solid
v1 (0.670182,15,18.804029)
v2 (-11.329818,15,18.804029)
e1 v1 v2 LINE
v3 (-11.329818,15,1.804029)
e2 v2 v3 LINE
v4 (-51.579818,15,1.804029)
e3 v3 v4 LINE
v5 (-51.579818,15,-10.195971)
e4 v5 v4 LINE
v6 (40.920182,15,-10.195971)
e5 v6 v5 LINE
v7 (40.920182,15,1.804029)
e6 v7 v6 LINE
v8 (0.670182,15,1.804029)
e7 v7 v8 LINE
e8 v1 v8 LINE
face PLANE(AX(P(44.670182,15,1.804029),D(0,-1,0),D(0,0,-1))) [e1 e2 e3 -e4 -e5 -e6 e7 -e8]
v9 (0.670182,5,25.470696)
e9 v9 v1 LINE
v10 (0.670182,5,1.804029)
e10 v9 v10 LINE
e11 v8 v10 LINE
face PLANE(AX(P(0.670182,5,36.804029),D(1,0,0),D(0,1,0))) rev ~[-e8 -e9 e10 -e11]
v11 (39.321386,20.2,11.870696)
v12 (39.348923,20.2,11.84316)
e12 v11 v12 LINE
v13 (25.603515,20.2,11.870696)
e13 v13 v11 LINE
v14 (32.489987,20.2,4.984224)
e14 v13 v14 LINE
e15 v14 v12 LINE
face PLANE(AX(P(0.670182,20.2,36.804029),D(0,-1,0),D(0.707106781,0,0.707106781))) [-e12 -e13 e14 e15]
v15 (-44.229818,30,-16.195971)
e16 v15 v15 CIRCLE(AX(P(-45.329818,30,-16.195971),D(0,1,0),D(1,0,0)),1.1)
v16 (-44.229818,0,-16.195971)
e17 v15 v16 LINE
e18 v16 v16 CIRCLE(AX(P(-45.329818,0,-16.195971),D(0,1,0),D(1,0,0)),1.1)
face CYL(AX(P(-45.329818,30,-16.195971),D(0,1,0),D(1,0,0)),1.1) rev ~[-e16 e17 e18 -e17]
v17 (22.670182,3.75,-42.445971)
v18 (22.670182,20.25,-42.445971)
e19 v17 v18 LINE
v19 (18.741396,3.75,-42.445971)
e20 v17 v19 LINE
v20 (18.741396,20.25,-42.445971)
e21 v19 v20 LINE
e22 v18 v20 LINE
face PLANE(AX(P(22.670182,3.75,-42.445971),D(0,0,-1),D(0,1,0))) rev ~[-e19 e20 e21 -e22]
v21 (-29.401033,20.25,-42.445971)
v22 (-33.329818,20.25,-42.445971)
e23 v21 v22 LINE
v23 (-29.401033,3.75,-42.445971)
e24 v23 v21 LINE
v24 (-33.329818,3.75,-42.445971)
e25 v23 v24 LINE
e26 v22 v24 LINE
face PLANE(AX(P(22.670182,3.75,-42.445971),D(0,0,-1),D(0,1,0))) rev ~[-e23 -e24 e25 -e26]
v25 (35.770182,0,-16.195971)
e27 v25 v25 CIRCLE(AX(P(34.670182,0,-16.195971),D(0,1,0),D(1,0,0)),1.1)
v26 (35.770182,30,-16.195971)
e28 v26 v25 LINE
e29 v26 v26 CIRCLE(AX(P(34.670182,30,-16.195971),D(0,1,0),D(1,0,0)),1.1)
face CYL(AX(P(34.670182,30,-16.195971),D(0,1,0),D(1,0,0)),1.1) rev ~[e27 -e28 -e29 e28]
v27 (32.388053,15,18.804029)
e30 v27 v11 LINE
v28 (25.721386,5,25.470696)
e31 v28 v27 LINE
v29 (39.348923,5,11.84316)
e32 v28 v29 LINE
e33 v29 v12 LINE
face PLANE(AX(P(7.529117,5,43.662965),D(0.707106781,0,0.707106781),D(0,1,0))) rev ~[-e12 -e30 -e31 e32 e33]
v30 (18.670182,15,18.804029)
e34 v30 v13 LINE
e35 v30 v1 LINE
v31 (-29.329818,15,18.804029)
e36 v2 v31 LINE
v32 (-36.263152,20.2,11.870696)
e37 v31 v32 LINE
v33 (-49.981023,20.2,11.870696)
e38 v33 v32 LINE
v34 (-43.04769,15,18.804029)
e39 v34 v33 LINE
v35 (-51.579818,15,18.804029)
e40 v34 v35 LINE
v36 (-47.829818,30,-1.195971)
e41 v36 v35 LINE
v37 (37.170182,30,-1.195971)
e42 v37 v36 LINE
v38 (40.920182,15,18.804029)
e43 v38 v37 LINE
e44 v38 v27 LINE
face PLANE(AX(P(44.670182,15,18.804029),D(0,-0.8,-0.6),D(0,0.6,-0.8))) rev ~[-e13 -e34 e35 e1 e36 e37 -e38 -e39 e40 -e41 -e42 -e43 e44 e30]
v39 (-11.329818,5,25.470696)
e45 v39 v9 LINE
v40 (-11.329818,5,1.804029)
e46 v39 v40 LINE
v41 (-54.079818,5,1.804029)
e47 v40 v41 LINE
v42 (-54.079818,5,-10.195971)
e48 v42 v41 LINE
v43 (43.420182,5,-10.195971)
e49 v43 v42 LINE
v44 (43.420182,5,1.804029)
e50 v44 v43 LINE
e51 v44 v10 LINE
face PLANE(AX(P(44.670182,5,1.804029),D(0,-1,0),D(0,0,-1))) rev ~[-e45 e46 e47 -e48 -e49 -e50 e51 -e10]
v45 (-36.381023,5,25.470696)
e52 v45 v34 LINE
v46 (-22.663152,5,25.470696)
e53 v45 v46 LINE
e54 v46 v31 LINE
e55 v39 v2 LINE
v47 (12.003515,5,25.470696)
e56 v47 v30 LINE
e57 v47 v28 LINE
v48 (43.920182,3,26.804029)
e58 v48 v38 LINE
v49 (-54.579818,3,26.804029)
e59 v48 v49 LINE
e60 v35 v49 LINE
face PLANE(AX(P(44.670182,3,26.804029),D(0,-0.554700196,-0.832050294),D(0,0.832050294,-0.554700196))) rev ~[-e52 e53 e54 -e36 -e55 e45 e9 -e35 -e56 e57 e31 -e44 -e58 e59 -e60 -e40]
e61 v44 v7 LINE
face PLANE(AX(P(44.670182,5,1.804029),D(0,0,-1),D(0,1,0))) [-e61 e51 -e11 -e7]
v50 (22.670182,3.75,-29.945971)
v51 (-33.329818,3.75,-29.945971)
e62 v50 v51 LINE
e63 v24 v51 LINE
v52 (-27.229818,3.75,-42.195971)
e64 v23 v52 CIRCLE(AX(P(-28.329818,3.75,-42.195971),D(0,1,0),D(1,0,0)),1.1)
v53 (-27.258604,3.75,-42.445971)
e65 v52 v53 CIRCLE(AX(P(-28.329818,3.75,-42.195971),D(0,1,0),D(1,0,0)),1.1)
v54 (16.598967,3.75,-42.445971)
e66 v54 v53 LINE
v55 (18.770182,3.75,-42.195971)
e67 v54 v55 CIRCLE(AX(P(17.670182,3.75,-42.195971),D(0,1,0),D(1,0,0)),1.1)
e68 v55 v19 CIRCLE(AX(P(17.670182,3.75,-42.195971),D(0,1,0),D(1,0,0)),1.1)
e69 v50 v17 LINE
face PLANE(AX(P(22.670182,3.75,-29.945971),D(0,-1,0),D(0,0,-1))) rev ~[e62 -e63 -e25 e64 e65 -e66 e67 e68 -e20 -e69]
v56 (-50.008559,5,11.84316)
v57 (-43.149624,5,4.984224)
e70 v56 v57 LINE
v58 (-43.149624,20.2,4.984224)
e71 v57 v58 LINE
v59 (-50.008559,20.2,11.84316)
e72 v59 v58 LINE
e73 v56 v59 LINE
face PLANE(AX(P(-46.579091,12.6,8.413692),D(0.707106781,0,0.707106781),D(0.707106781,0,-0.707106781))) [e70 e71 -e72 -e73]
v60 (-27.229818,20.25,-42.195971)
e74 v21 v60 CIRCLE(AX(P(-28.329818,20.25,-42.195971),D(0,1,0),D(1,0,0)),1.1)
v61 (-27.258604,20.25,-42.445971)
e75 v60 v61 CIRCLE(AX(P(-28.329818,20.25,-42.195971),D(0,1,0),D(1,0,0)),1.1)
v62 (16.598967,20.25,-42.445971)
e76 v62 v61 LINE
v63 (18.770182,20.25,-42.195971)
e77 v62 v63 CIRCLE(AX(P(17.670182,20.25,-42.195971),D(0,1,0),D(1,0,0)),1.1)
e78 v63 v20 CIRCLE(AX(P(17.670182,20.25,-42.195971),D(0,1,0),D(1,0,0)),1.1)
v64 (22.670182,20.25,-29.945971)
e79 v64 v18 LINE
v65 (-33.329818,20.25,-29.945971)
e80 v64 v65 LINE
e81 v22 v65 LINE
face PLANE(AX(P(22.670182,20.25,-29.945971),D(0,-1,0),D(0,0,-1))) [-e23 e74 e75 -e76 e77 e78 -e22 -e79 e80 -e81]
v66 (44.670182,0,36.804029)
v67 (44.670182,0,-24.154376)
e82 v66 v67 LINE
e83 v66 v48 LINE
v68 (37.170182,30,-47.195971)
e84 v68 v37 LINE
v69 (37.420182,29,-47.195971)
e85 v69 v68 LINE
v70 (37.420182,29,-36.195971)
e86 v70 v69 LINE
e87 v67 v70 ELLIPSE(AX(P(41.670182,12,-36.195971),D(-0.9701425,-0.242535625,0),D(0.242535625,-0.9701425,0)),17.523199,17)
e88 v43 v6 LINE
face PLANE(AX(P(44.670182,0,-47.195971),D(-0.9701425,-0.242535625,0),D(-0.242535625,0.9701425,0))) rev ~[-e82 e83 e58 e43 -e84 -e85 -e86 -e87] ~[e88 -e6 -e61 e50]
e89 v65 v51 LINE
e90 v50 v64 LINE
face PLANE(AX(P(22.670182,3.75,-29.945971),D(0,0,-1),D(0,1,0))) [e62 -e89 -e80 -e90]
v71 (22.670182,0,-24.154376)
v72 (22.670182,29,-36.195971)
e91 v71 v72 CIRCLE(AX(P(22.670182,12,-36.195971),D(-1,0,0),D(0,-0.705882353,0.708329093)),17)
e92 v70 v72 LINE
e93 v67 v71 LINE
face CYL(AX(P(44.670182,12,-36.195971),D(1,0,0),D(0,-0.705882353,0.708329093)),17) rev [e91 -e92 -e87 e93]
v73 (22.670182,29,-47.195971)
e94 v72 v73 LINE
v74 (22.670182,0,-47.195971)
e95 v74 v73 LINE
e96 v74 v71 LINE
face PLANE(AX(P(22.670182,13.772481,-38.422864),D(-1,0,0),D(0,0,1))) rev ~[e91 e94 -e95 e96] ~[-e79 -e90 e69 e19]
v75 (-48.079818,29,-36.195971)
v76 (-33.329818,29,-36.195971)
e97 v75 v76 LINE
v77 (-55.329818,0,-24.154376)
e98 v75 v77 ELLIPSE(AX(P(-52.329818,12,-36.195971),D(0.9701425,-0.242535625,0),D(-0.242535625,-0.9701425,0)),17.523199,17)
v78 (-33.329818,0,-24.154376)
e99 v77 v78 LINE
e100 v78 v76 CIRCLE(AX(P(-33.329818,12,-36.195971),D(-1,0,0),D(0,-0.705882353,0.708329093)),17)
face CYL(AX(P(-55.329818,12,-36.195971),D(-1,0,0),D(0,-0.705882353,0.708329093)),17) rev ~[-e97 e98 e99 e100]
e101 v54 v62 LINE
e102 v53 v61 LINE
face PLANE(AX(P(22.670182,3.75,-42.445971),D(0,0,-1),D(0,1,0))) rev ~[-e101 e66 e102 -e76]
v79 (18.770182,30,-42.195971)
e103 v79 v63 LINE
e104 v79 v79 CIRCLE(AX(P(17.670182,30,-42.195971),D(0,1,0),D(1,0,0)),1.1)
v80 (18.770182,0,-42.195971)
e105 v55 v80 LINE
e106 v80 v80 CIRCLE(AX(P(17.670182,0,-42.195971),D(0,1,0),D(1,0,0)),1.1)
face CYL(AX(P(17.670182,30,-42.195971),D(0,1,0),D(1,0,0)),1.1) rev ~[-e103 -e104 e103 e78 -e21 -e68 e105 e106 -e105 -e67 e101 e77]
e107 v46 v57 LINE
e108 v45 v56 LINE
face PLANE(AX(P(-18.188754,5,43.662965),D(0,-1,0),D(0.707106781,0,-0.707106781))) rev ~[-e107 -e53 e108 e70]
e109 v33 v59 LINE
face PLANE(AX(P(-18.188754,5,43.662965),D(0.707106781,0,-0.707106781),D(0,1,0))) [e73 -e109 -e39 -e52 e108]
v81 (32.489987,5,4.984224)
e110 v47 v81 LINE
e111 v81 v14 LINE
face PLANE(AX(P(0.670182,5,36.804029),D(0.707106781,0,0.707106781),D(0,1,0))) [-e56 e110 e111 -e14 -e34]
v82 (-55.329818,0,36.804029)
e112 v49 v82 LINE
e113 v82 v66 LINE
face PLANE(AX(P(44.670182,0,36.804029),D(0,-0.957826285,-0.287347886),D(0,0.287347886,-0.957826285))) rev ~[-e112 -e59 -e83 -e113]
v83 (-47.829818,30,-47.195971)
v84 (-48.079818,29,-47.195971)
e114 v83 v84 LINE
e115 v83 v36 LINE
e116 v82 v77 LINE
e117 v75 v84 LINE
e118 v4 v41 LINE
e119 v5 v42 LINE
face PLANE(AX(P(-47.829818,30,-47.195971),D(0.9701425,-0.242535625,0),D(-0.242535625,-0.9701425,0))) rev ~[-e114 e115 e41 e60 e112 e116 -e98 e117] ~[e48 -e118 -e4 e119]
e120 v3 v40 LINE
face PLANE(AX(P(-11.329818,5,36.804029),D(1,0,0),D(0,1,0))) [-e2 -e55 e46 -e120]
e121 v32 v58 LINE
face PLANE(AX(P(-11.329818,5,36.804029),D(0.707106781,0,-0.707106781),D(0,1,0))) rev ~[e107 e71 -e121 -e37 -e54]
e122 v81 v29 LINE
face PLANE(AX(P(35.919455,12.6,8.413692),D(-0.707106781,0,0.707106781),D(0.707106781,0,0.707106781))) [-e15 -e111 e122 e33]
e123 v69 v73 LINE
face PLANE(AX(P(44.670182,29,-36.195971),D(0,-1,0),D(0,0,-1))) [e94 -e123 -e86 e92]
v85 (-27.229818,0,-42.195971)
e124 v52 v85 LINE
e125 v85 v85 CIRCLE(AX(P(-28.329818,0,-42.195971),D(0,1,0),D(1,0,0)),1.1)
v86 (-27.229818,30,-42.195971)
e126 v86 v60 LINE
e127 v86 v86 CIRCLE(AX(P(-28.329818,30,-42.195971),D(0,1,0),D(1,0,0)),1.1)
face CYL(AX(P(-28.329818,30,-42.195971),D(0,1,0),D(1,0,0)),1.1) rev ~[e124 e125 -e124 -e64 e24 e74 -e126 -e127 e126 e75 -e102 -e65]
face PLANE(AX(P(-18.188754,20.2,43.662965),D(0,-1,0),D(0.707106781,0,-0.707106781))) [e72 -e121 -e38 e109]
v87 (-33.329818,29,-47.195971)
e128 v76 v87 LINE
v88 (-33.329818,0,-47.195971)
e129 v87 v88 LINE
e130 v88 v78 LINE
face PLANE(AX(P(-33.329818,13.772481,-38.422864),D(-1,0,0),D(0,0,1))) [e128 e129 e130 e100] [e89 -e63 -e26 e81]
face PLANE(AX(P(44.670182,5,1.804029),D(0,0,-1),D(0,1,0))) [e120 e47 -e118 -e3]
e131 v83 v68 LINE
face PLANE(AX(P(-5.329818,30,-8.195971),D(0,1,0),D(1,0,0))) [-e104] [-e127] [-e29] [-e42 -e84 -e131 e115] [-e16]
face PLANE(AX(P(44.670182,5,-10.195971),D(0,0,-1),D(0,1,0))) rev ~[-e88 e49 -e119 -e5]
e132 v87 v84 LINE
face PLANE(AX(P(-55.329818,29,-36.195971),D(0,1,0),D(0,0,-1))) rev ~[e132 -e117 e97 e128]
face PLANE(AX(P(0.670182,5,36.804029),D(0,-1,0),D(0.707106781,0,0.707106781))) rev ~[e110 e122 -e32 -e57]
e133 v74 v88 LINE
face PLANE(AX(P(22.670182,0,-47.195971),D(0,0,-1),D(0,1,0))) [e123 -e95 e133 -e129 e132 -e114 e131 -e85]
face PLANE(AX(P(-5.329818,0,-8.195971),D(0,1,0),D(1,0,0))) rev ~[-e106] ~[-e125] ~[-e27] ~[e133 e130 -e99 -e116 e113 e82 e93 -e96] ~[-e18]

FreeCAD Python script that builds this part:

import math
import FreeCAD as App
import Part
import Sketcher
from FreeCAD import Vector

doc = App.newDocument("Part")
body = doc.addObject("PartDesign::Body", "Body")

# Sketch on XZ plane
sketch1 = body.newObject("Sketcher::SketchObject", "Sketch")
sketch1.AttachmentSupport = (doc.getObject("XZ_Plane"), [""])
sketch1.MapMode = "FlatFace"
sketch1.addGeometry([
    Part.LineSegment(Vector(-55, -53, 0), Vector(-55, 37, 0)),
    Part.LineSegment(Vector(-55, 37, 0), Vector(45, 37, 0)),
    Part.LineSegment(Vector(45, 37, 0), Vector(45, -53, 0)),
    Part.LineSegment(Vector(45, -53, 0), Vector(-55, -53, 0)),
], False)
sketch1.addConstraint([
    Sketcher.Constraint("Coincident", 0, 2, 1, 1),
    Sketcher.Constraint("Coincident", 1, 2, 2, 1),
    Sketcher.Constraint("Coincident", 2, 2, 3, 1),
    Sketcher.Constraint("Coincident", 3, 2, 0, 1),
    Sketcher.Constraint("Vertical", 0),
    Sketcher.Constraint("Horizontal", 1),
    Sketcher.Constraint("Vertical", 2),
    Sketcher.Constraint("Horizontal", 3),
    Sketcher.Constraint("DistanceX", 1, 1, 1, 2, 100.0),
    Sketcher.Constraint("DistanceY", 0, 1, 0, 2, 90.0),
    Sketcher.Constraint("DistanceX", 0, 2, -1, 1, 55.329818),
    Sketcher.Constraint("DistanceY", -1, 1, 0, 2, 36.804029),
])
pad1 = body.newObject("PartDesign::Pad", "Pad")
pad1.Profile = sketch1
pad1.Length = 30
pad1.Reversed = True

# Sketch on YZ plane
sketch2 = body.newObject("Sketcher::SketchObject", "Sketch001")
sketch2.AttachmentSupport = (doc.getObject("YZ_Plane"), [""])
sketch2.MapMode = "FlatFace"
sketch2.AttachmentOffset = App.Placement(Vector(0, 0, 44.670182), App.Rotation())
sketch2.addGeometry([
    Part.LineSegment(Vector(29, -53, 0), Vector(29, -36, 0)),
    Part.ArcOfCircle(Part.Circle(Vector(12, -36, 0), Vector(0, 0, 1), 17), math.radians(0), math.radians(135)),
    Part.LineSegment(Vector(0, -24, 0), Vector(0, -53, 0)),
    Part.LineSegment(Vector(0, -53, 0), Vector(29, -53, 0)),
], False)
sketch2.addConstraint([
    Sketcher.Constraint("Tangent", 0, 2, 1, 1),
    Sketcher.Constraint("Coincident", 1, 2, 2, 1),
    Sketcher.Constraint("Coincident", 2, 2, 3, 1),
    Sketcher.Constraint("Coincident", 3, 2, 0, 1),
    Sketcher.Constraint("Vertical", 0),
    Sketcher.Constraint("Vertical", 2),
    Sketcher.Constraint("Horizontal", 3),
    Sketcher.Constraint("PointOnObject", 1, 2, -2),
    Sketcher.Constraint("Radius", 1, 17.0),
    Sketcher.Constraint("DistanceX", 3, 1, 3, 2, 29.0),
    Sketcher.Constraint("DistanceY", 0, 1, 0, 2, 17.0),
    Sketcher.Constraint("DistanceY", 1, 3, -1, 1, 36.195971),
])
pocket1 = body.newObject("PartDesign::Pocket", "Pocket")
pocket1.Profile = sketch2
pocket1.Length = 22

# Sketch on YZ plane
sketch3 = body.newObject("Sketcher::SketchObject", "Sketch002")
sketch3.AttachmentSupport = (doc.getObject("YZ_Plane"), [""])
sketch3.MapMode = "FlatFace"
sketch3.AttachmentOffset = App.Placement(Vector(0, 0, -55.329818), App.Rotation())
sketch3.addGeometry([
    Part.LineSegment(Vector(29, -36, 0), Vector(29, -53, 0)),
    Part.LineSegment(Vector(29, -53, 0), Vector(0, -53, 0)),
    Part.LineSegment(Vector(0, -53, 0), Vector(0, -24, 0)),
    Part.ArcOfCircle(Part.Circle(Vector(12, -36, 0), Vector(0, 0, 1), 17), math.radians(0), math.radians(135)),
], False)
sketch3.addConstraint([
    Sketcher.Constraint("Coincident", 0, 2, 1, 1),
    Sketcher.Constraint("Coincident", 1, 2, 2, 1),
    Sketcher.Constraint("Coincident", 2, 2, 3, 2),
    Sketcher.Constraint("Tangent", 3, 1, 0, 1),
    Sketcher.Constraint("Vertical", 0),
    Sketcher.Constraint("Horizontal", 1),
    Sketcher.Constraint("Vertical", 2),
    Sketcher.Constraint("PointOnObject", 1, 2, -2),
    Sketcher.Constraint("Radius", 3, 17.0),
    Sketcher.Constraint("DistanceX", 1, 2, 1, 1, 29.0),
    Sketcher.Constraint("DistanceY", 0, 2, 0, 1, 17.0),
    Sketcher.Constraint("DistanceY", 3, 3, -1, 1, 36.195971),
])
pocket2 = body.newObject("PartDesign::Pocket", "Pocket001")
pocket2.Profile = sketch3
pocket2.Length = 22
pocket2.Reversed = True

# Sketch on YZ plane
sketch4 = body.newObject("Sketcher::SketchObject", "Sketch003")
sketch4.AttachmentSupport = (doc.getObject("YZ_Plane"), [""])
sketch4.MapMode = "FlatFace"
sketch4.AttachmentOffset = App.Placement(Vector(0, 0, 22.670182), App.Rotation())
sketch4.addGeometry([
    Part.LineSegment(Vector(20, -30, 0), Vector(4, -30, 0)),
    Part.LineSegment(Vector(4, -30, 0), Vector(4, -42, 0)),
    Part.LineSegment(Vector(4, -42, 0), Vector(20, -42, 0)),
    Part.LineSegment(Vector(20, -42, 0), Vector(20, -30, 0)),
], False)
sketch4.addConstraint([
    Sketcher.Constraint("Coincident", 0, 2, 1, 1),
    Sketcher.Constraint("Coincident", 1, 2, 2, 1),
    Sketcher.Constraint("Coincident", 2, 2, 3, 1),
    Sketcher.Constraint("Coincident", 3, 2, 0, 1),
    Sketcher.Constraint("Horizontal", 0),
    Sketcher.Constraint("Vertical", 1),
    Sketcher.Constraint("Horizontal", 2),
    Sketcher.Constraint("Vertical", 3),
    Sketcher.Constraint("DistanceX", 0, 2, 0, 1, 16.5),
    Sketcher.Constraint("DistanceY", 1, 2, 1, 1, 12.5),
    Sketcher.Constraint("DistanceX", -1, 1, 0, 2, 3.75),
    Sketcher.Constraint("DistanceY", 0, 2, -1, 1, 29.945971),
])
pocket3 = body.newObject("PartDesign::Pocket", "Pocket002")
pocket3.Profile = sketch4
pocket3.Length = 70

# Sketch on YZ plane
sketch5 = body.newObject("Sketcher::SketchObject", "Sketch004")
sketch5.AttachmentSupport = (doc.getObject("YZ_Plane"), [""])
sketch5.MapMode = "FlatFace"
sketch5.AttachmentOffset = App.Placement(Vector(0, 0, 22.670182), App.Rotation())
sketch5.addGeometry([
    Part.LineSegment(Vector(30, -47, 0), Vector(0, -47, 0)),
    Part.LineSegment(Vector(0, -47, 0), Vector(0, -53, 0)),
    Part.LineSegment(Vector(0, -53, 0), Vector(30, -53, 0)),
    Part.LineSegment(Vector(30, -53, 0), Vector(30, -47, 0)),
], False)
sketch5.addConstraint([
    Sketcher.Constraint("Coincident", 0, 2, 1, 1),
    Sketcher.Constraint("Coincident", 1, 2, 2, 1),
    Sketcher.Constraint("Coincident", 2, 2, 3, 1),
    Sketcher.Constraint("Coincident", 3, 2, 0, 1),
    Sketcher.Constraint("Horizontal", 0),
    Sketcher.Constraint("Vertical", 1),
    Sketcher.Constraint("Horizontal", 2),
    Sketcher.Constraint("Vertical", 3),
    Sketcher.Constraint("PointOnObject", 0, 2, -2),
    Sketcher.Constraint("DistanceX", 0, 2, 0, 1, 30.0),
    Sketcher.Constraint("DistanceY", 1, 2, 1, 1, 6.0),
    Sketcher.Constraint("DistanceY", 0, 2, -1, 1, 47.195971),
])
pocket4 = body.newObject("PartDesign::Pocket", "Pocket003")
pocket4.Profile = sketch5
pocket4.Length = 100

# Sketch on XZ plane
sketch6 = body.newObject("Sketcher::SketchObject", "Sketch005")
sketch6.AttachmentSupport = (doc.getObject("XZ_Plane"), [""])
sketch6.MapMode = "FlatFace"
sketch6.AttachmentOffset = App.Placement(Vector(0, 0, -30), App.Rotation())
sketch6.addGeometry([
    Part.LineSegment(Vector(23, -53, 0), Vector(23, -47, 0)),
    Part.LineSegment(Vector(23, -47, 0), Vector(45, -47, 0)),
    Part.LineSegment(Vector(45, -47, 0), Vector(45, -53, 0)),
    Part.LineSegment(Vector(45, -53, 0), Vector(23, -53, 0)),
], False)
sketch6.addConstraint([
    Sketcher.Constraint("Coincident", 0, 2, 1, 1),
    Sketcher.Constraint("Coincident", 1, 2, 2, 1),
    Sketcher.Constraint("Coincident", 2, 2, 3, 1),
    Sketcher.Constraint("Coincident", 3, 2, 0, 1),
    Sketcher.Constraint("Vertical", 0),
    Sketcher.Constraint("Horizontal", 1),
    Sketcher.Constraint("Vertical", 2),
    Sketcher.Constraint("Horizontal", 3),
    Sketcher.Constraint("DistanceX", 1, 1, 1, 2, 22.0),
    Sketcher.Constraint("DistanceY", 0, 1, 0, 2, 6.0),
    Sketcher.Constraint("DistanceX", -1, 1, 0, 2, 22.670182),
    Sketcher.Constraint("DistanceY", 0, 2, -1, 1, 47.195971),
])
pocket5 = body.newObject("PartDesign::Pocket", "Pocket004")
pocket5.Profile = sketch6
pocket5.Length = 100
pocket5.Reversed = True

# Sketch on YZ plane
sketch7 = body.newObject("Sketcher::SketchObject", "Sketch006")
sketch7.AttachmentSupport = (doc.getObject("YZ_Plane"), [""])
sketch7.MapMode = "FlatFace"
sketch7.AttachmentOffset = App.Placement(Vector(0, 0, 44.670182), App.Rotation())
sketch7.addGeometry([
    Part.LineSegment(Vector(15, 2, 0), Vector(5, 2, 0)),
    Part.LineSegment(Vector(5, 2, 0), Vector(5, -10, 0)),
    Part.LineSegment(Vector(5, -10, 0), Vector(15, -10, 0)),
    Part.LineSegment(Vector(15, -10, 0), Vector(15, 2, 0)),
], False)
sketch7.addConstraint([
    Sketcher.Constraint("Coincident", 0, 2, 1, 1),
    Sketcher.Constraint("Coincident", 1, 2, 2, 1),
    Sketcher.Constraint("Coincident", 2, 2, 3, 1),
    Sketcher.Constraint("Coincident", 3, 2, 0, 1),
    Sketcher.Constraint("Horizontal", 0),
    Sketcher.Constraint("Vertical", 1),
    Sketcher.Constraint("Horizontal", 2),
    Sketcher.Constraint("Vertical", 3),
    Sketcher.Constraint("DistanceX", 0, 2, 0, 1, 10.0),
    Sketcher.Constraint("DistanceY", 1, 2, 1, 1, 12.0),
    Sketcher.Constraint("DistanceX", -1, 1, 0, 2, 5.0),
    Sketcher.Constraint("DistanceY", -1, 1, 0, 2, 1.804029),
])
pocket6 = body.newObject("PartDesign::Pocket", "Pocket005")
pocket6.Profile = sketch7
pocket6.Length = 100

# Sketch on XY plane
sketch8 = body.newObject("Sketcher::SketchObject", "Sketch007")
sketch8.AttachmentSupport = (doc.getObject("XY_Plane"), [""])
sketch8.MapMode = "FlatFace"
sketch8.AttachmentOffset = App.Placement(Vector(0, 0, 36.804029), App.Rotation())
sketch8.addGeometry([
    Part.LineSegment(Vector(-11, 15, 0), Vector(-11, 5, 0)),
    Part.LineSegment(Vector(-11, 5, 0), Vector(1, 5, 0)),
    Part.LineSegment(Vector(1, 5, 0), Vector(1, 15, 0)),
    Part.LineSegment(Vector(1, 15, 0), Vector(-11, 15, 0)),
], False)
sketch8.addConstraint([
    Sketcher.Constraint("Coincident", 0, 2, 1, 1),
    Sketcher.Constraint("Coincident", 1, 2, 2, 1),
    Sketcher.Constraint("Coincident", 2, 2, 3, 1),
    Sketcher.Constraint("Coincident", 3, 2, 0, 1),
    Sketcher.Constraint("Vertical", 0),
    Sketcher.Constraint("Horizontal", 1),
    Sketcher.Constraint("Vertical", 2),
    Sketcher.Constraint("Horizontal", 3),
    Sketcher.Constraint("DistanceX", 1, 1, 1, 2, 12.0),
    Sketcher.Constraint("DistanceY", 0, 2, 0, 1, 10.0),
    Sketcher.Constraint("DistanceY", -1, 1, 0, 2, 5.0),
    Sketcher.Constraint("DistanceX", 0, 2, -1, 1, 11.329818),
])
pocket7 = body.newObject("PartDesign::Pocket", "Pocket006")
pocket7.Profile = sketch8
pocket7.Length = 45

# Sketch on an angled plane
sketch9 = body.newObject("Sketcher::SketchObject", "Sketch008")
sketch9.Placement = App.Placement(Vector(12.737105, 0, 12.737105), App.Rotation(Vector(0.707106781, 0, -0.707106781), Vector(0, 0.999999999, 0), Vector(0.707106781, 0, 0.707106781), "ZXY"))
sketch9.addGeometry([
    Part.LineSegment(Vector(-44, 20, 0), Vector(-44, 5, 0)),
    Part.LineSegment(Vector(-44, 5, 0), Vector(-34, 5, 0)),
    Part.LineSegment(Vector(-34, 5, 0), Vector(-34, 20, 0)),
    Part.LineSegment(Vector(-34, 20, 0), Vector(-44, 20, 0)),
], False)
sketch9.addConstraint([
    Sketcher.Constraint("Coincident", 0, 2, 1, 1),
    Sketcher.Constraint("Coincident", 1, 2, 2, 1),
    Sketcher.Constraint("Coincident", 2, 2, 3, 1),
    Sketcher.Constraint("Coincident", 3, 2, 0, 1),
    Sketcher.Constraint("Vertical", 0),
    Sketcher.Constraint("Horizontal", 1),
    Sketcher.Constraint("Vertical", 2),
    Sketcher.Constraint("Horizontal", 3),
    Sketcher.Constraint("DistanceX", 1, 1, 1, 2, 9.7),
    Sketcher.Constraint("DistanceY", 0, 2, 0, 1, 15.2),
    Sketcher.Constraint("DistanceY", -1, 1, 0, 2, 5.0),
    Sketcher.Constraint("DistanceX", 0, 2, -1, 1, 43.73577),
])
pocket8 = body.newObject("PartDesign::Pocket", "Pocket007")
pocket8.Profile = sketch9
pocket8.Length = 45

# Sketch on an angled plane
sketch10 = body.newObject("Sketcher::SketchObject", "Sketch009")
sketch10.Placement = App.Placement(Vector(-18.066924, 0, 18.066924), App.Rotation(Vector(0.707106781, 0, 0.707106781), Vector(0, 0.999999999, 0), Vector(-0.707106781, 0, 0.707106781), "ZXY"))
sketch10.addGeometry([
    Part.LineSegment(Vector(26, 20, 0), Vector(26, 5, 0)),
    Part.LineSegment(Vector(26, 5, 0), Vector(36, 5, 0)),
    Part.LineSegment(Vector(36, 5, 0), Vector(36, 20, 0)),
    Part.LineSegment(Vector(36, 20, 0), Vector(26, 20, 0)),
], False)
sketch10.addConstraint([
    Sketcher.Constraint("Coincident", 0, 2, 1, 1),
    Sketcher.Constraint("Coincident", 1, 2, 2, 1),
    Sketcher.Constraint("Coincident", 2, 2, 3, 1),
    Sketcher.Constraint("Coincident", 3, 2, 0, 1),
    Sketcher.Constraint("Vertical", 0),
    Sketcher.Constraint("Horizontal", 1),
    Sketcher.Constraint("Vertical", 2),
    Sketcher.Constraint("Horizontal", 3),
    Sketcher.Constraint("DistanceX", 1, 1, 1, 2, 9.7),
    Sketcher.Constraint("DistanceY", 0, 2, 0, 1, 15.2),
    Sketcher.Constraint("DistanceY", -1, 1, 0, 2, 5.0),
    Sketcher.Constraint("DistanceX", -1, 1, 0, 2, 26.498268),
])
pocket9 = body.newObject("PartDesign::Pocket", "Pocket008")
pocket9.Profile = sketch10
pocket9.Length = 45

# Sketch on YZ plane
sketch11 = body.newObject("Sketcher::SketchObject", "Sketch010")
sketch11.AttachmentSupport = (doc.getObject("YZ_Plane"), [""])
sketch11.MapMode = "FlatFace"
sketch11.AttachmentOffset = App.Placement(Vector(0, 0, 44.670182), App.Rotation())
sketch11.addGeometry([
    Part.LineSegment(Vector(0, 37, 0), Vector(3, 27, 0)),  # 0
    Part.LineSegment(Vector(3, 27, 0), Vector(15, 19, 0)),  # 1
    Part.LineSegment(Vector(15, 19, 0), Vector(30, -1, 0)),  # 2
    Part.LineSegment(Vector(30, -1, 0), Vector(30, 37, 0)),  # 3
    Part.LineSegment(Vector(30, 37, 0), Vector(0, 37, 0)),  # 4
], False)
sketch11.addConstraint([
    Sketcher.Constraint("Coincident", 0, 2, 1, 1),
    Sketcher.Constraint("Coincident", 1, 2, 2, 1),
    Sketcher.Constraint("Coincident", 2, 2, 3, 1),
    Sketcher.Constraint("Coincident", 3, 2, 4, 1),
    Sketcher.Constraint("Coincident", 4, 2, 0, 1),
    Sketcher.Constraint("Vertical", 3),
    Sketcher.Constraint("Horizontal", 4),
    Sketcher.Constraint("PointOnObject", 4, 2, -2),
    Sketcher.Constraint("DistanceX", 4, 2, 4, 1, 30.0),
    Sketcher.Constraint("DistanceY", 3, 1, 3, 2, 38.0),
    Sketcher.Constraint("Distance", 2, 25.0),
    Sketcher.Constraint("DistanceX", -1, 1, 0, 2, 3.0),
    Sketcher.Constraint("DistanceX", -1, 1, 1, 2, 15.0),
    Sketcher.Constraint("DistanceY", 1, 2, 0, 2, 8.0),
    Sketcher.Constraint("DistanceY", -1, 1, 0, 2, 26.804029),
])
pocket10 = body.newObject("PartDesign::Pocket", "Pocket009")
pocket10.Profile = sketch11
pocket10.Length = 100

# Sketch on XZ plane
sketch12 = body.newObject("Sketcher::SketchObject", "Sketch011")
sketch12.AttachmentSupport = (doc.getObject("XZ_Plane"), [""])
sketch12.MapMode = "FlatFace"
sketch12.AttachmentOffset = App.Placement(Vector(0, 0, -30), App.Rotation())
sketch12.addGeometry([
    Part.Circle(Vector(-28.3, -42.2, 0), Vector(0, 0, 1), 1.1),
    Part.Circle(Vector(-45.3, -16.2, 0), Vector(0, 0, 1), 1.1),
    Part.Circle(Vector(34.7, -16.2, 0), Vector(0, 0, 1), 1.1),
    Part.Circle(Vector(17.7, -42.2, 0), Vector(0, 0, 1), 1.1),
], False)
sketch12.addConstraint([
    Sketcher.Constraint("Equal", 0, 1),
    Sketcher.Constraint("Equal", 1, 2),
    Sketcher.Constraint("Equal", 2, 3),
    Sketcher.Constraint("Horizontal", 1, 3, 2, 3),
    Sketcher.Constraint("Horizontal", 0, 3, 3, 3),
    Sketcher.Constraint("Diameter", 0, 2.2),
    Sketcher.Constraint("DistanceX", 1, 3, 0, 3, 17.0),
    Sketcher.Constraint("DistanceY", 0, 3, 1, 3, 26.0),
    Sketcher.Constraint("DistanceX", 0, 3, 2, 3, 63.0),
    Sketcher.Constraint("DistanceX", 3, 3, 2, 3, 17.0),
    Sketcher.Constraint("DistanceX", 0, 3, -1, 1, 28.329818),
    Sketcher.Constraint("DistanceY", 0, 3, -1, 1, 42.195971),
])
pocket11 = body.newObject("PartDesign::Pocket", "Pocket010")
pocket11.Profile = sketch12
pocket11.Length = 100
pocket11.Reversed = True

# Sketch on XY plane
sketch13 = body.newObject("Sketcher::SketchObject", "Sketch012")
sketch13.AttachmentSupport = (doc.getObject("XY_Plane"), [""])
sketch13.MapMode = "FlatFace"
sketch13.AttachmentOffset = App.Placement(Vector(0, 0, -47.195971), App.Rotation())
sketch13.addGeometry([
    Part.LineSegment(Vector(45, 0, 0), Vector(37, 30, 0)),  # 0
    Part.LineSegment(Vector(37, 30, 0), Vector(45, 30, 0)),  # 1
    Part.LineSegment(Vector(45, 30, 0), Vector(45, 0, 0)),  # 2
    Part.LineSegment(Vector(-55, 0, 0), Vector(-55, 30, 0)),  # 3
    Part.LineSegment(Vector(-55, 30, 0), Vector(-48, 30, 0)),  # 4
    Part.LineSegment(Vector(-48, 30, 0), Vector(-55, 0, 0)),  # 5
], False)
sketch13.addConstraint([
    Sketcher.Constraint("Coincident", 0, 2, 1, 1),
    Sketcher.Constraint("Coincident", 1, 2, 2, 1),
    Sketcher.Constraint("Coincident", 2, 2, 0, 1),
    Sketcher.Constraint("Coincident", 3, 2, 4, 1),
    Sketcher.Constraint("Coincident", 4, 2, 5, 1),
    Sketcher.Constraint("Coincident", 5, 2, 3, 1),
    Sketcher.Constraint("Horizontal", 1),
    Sketcher.Constraint("Vertical", 2),
    Sketcher.Constraint("Vertical", 3),
    Sketcher.Constraint("Horizontal", 4),
    Sketcher.Constraint("PointOnObject", 2, 2, -1),
    Sketcher.Constraint("PointOnObject", 5, 2, -1),
    Sketcher.Constraint("Horizontal", 1, 2, 3, 2),
    Sketcher.Constraint("Equal", 1, 4),
    Sketcher.Constraint("DistanceY", 2, 2, 2, 1, 30.0),
    Sketcher.Constraint("DistanceX", 1, 1, 1, 2, 7.5),
    Sketcher.Constraint("DistanceX", 3, 2, 1, 2, 100.0),
    Sketcher.Constraint("DistanceX", -1, 1, 0, 2, 37.170182),
])
pocket12 = body.newObject("PartDesign::Pocket", "Pocket011")
pocket12.Profile = sketch13
pocket12.Length = 100
pocket12.Reversed = True
body2 = doc.addObject("PartDesign::Body", "Body001")

# Sketch on XZ plane
sketch14 = body2.newObject("Sketcher::SketchObject", "Sketch013")
sketch14.AttachmentSupport = (doc.getObject("XZ_Plane001"), [""])
sketch14.MapMode = "FlatFace"
sketch14.AttachmentOffset = App.Placement(Vector(0, 0, -30), App.Rotation())
sketch14.addGeometry([
    Part.LineSegment(Vector(-17, 43, 0), Vector(-11, 37, 0)),
    Part.LineSegment(Vector(-11, 37, 0), Vector(-17, 37, 0)),
    Part.LineSegment(Vector(-17, 37, 0), Vector(-17, 43, 0)),
], False)
sketch14.addConstraint([
    Sketcher.Constraint("Coincident", 0, 2, 1, 1),
    Sketcher.Constraint("Coincident", 1, 2, 2, 1),
    Sketcher.Constraint("Coincident", 2, 2, 0, 1),
    Sketcher.Constraint("Horizontal", 1),
    Sketcher.Constraint("Vertical", 2),
    Sketcher.Constraint("Equal", 1, 2),
    Sketcher.Constraint("Distance", 0, 8.349471),
    Sketcher.Constraint("DistanceX", 0, 2, -1, 1, 11.329818),
    Sketcher.Constraint("DistanceY", -1, 1, 0, 2, 36.804029),
])
pad2 = body2.newObject("PartDesign::Pad", "Pad001")
pad2.Profile = sketch14
pad2.Length = 45
pad2.Reversed = True
body3 = doc.addObject("PartDesign::Body", "Body002")

# Sketch on XZ plane
sketch15 = body3.newObject("Sketcher::SketchObject", "Sketch014")
sketch15.AttachmentSupport = (doc.getObject("XZ_Plane002"), [""])
sketch15.MapMode = "FlatFace"
sketch15.AttachmentOffset = App.Placement(Vector(0, 0, -30), App.Rotation())
sketch15.addGeometry([
    Part.LineSegment(Vector(0.7, 36.8, 0), Vector(4.7, 40.9, 0)),
    Part.LineSegment(Vector(4.7, 40.9, 0), Vector(4.7, 36.8, 0)),
    Part.LineSegment(Vector(4.7, 36.8, 0), Vector(0.7, 36.8, 0)),
], False)
sketch15.addConstraint([
    Sketcher.Constraint("Coincident", 0, 2, 1, 1),
    Sketcher.Constraint("Coincident", 1, 2, 2, 1),
    Sketcher.Constraint("Coincident", 2, 2, 0, 1),
    Sketcher.Constraint("Vertical", 1),
    Sketcher.Constraint("Horizontal", 2),
    Sketcher.Constraint("Equal", 2, 1),
    Sketcher.Constraint("Distance", 0, 5.725168),
    Sketcher.Constraint("DistanceY", -1, 1, 1, 2, 36.804029),
    Sketcher.Constraint("DistanceX", -1, 1, 2, 2, 0.670182),
])
pad3 = body3.newObject("PartDesign::Pad", "Pad002")
pad3.Profile = sketch15
pad3.Length = 45
pad3.Reversed = True
body4 = doc.addObject("PartDesign::Body", "Body003")

# Sketch on XZ plane
sketch16 = body4.newObject("Sketcher::SketchObject", "Sketch015")
sketch16.AttachmentSupport = (doc.getObject("XZ_Plane003"), [""])
sketch16.MapMode = "FlatFace"
sketch16.AttachmentOffset = App.Placement(Vector(0, 0, -30), App.Rotation())
sketch16.addGeometry([
    Part.LineSegment(Vector(-27, 19, 0), Vector(-27, 70, 0)),
    Part.LineSegment(Vector(-27, 70, 0), Vector(38, 70, 0)),
    Part.LineSegment(Vector(38, 70, 0), Vector(38, 19, 0)),
    Part.LineSegment(Vector(38, 19, 0), Vector(-27, 19, 0)),
], False)
sketch16.addConstraint([
    Sketcher.Constraint("Coincident", 0, 2, 1, 1),
    Sketcher.Constraint("Coincident", 1, 2, 2, 1),
    Sketcher.Constraint("Coincident", 2, 2, 3, 1),
    Sketcher.Constraint("Coincident", 3, 2, 0, 1),
    Sketcher.Constraint("Vertical", 0),
    Sketcher.Constraint("Horizontal", 1),
    Sketcher.Constraint("Vertical", 2),
    Sketcher.Constraint("Horizontal", 3),
    Sketcher.Constraint("DistanceX", 1, 1, 1, 2, 64.64821),
    Sketcher.Constraint("DistanceY", 0, 1, 0, 2, 50.718485),
    Sketcher.Constraint("DistanceY", -1, 1, 2, 2, 19.324068),
    Sketcher.Constraint("DistanceX", 0, 2, -1, 1, 27.007666),
])
pad4 = body4.newObject("PartDesign::Pad", "Pad003")
pad4.Profile = sketch16
pad4.Length = 45
pad4.Reversed = True
doc.recompute()

body5 = doc.addObject("PartDesign::Body", "Body004")
body5.BaseFeature = body4
boolean = body2.newObject("PartDesign::Boolean", "Boolean")
boolean.Type = "Cut"
boolean.addObjects([body5])
doc.recompute()

boolean2 = body3.newObject("PartDesign::Boolean", "Boolean001")
boolean2.Type = "Cut"
boolean2.addObjects([body4])

doc.recompute()
